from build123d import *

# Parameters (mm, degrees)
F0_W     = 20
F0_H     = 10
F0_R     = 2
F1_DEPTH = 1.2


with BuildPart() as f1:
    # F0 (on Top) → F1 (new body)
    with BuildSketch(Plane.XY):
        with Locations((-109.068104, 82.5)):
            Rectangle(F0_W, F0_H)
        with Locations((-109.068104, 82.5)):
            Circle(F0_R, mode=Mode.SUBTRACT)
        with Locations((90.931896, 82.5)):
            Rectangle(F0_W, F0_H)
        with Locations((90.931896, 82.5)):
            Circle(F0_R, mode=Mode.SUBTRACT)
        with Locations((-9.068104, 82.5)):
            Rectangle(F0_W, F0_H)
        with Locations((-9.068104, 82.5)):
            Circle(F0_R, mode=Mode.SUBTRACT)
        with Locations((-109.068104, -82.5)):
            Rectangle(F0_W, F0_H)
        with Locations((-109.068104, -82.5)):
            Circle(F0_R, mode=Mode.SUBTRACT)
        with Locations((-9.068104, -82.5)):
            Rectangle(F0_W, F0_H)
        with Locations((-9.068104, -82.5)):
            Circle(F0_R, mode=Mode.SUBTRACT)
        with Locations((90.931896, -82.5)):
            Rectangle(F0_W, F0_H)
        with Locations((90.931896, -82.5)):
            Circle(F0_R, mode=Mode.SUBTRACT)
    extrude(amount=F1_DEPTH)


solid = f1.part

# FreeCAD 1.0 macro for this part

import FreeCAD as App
import Part
import Sketcher
from FreeCAD import Vector


def add_polygon(sketch, points):
    """Adds a closed chain of lines whose ends are joined by coincident constraints."""
    first, n = sketch.GeometryCount, len(points)
    for a, b in zip(points, points[1:] + points[:1]):
        sketch.addGeometry(Part.LineSegment(App.Vector(*a, 0), App.Vector(*b, 0)), False)
    for i in range(n):
        sketch.addConstraint(Sketcher.Constraint("Coincident", first + i, 2, first + (i + 1) % n, 1))

doc = App.newDocument("Part")
body = doc.addObject("PartDesign::Body", "Body")
body.AllowCompound = True

# Sketch on XY plane
sketch1 = body.newObject("Sketcher::SketchObject", "Sketch")
sketch1.AttachmentSupport = (doc.getObject("XY_Plane"), [""])
sketch1.MapMode = "FlatFace"
add_polygon(sketch1, [(-119.068104, 87.5), (-119.068104, 77.5), (-99.068104, 77.5), (-99.068104, 87.5)])  # lines 0-3
sketch1.addGeometry(Part.Circle(Vector(-109.068104, 82.5, 0), Vector(0, 0, 1), 2), False)  # 4
add_polygon(sketch1, [(80.931896, 87.5), (80.931896, 77.5), (100.931896, 77.5), (100.931896, 87.5)])  # lines 5-8
sketch1.addGeometry(Part.Circle(Vector(90.931896, 82.5, 0), Vector(0, 0, 1), 2), False)  # 9
add_polygon(sketch1, [(-19.068104, 87.5), (-19.068104, 77.5), (0.931896, 77.5), (0.931896, 87.5)])  # lines 10-13
sketch1.addGeometry(Part.Circle(Vector(-9.068104, 82.5, 0), Vector(0, 0, 1), 2), False)  # 14
add_polygon(sketch1, [(-119.068104, -77.5), (-119.068104, -87.5), (-99.068104, -87.5), (-99.068104, -77.5)])  # lines 15-18
sketch1.addGeometry(Part.Circle(Vector(-109.068104, -82.5, 0), Vector(0, 0, 1), 2), False)  # 19
add_polygon(sketch1, [(-19.068104, -77.5), (-19.068104, -87.5), (0.931896, -87.5), (0.931896, -77.5)])  # lines 20-23
sketch1.addGeometry(Part.Circle(Vector(-9.068104, -82.5, 0), Vector(0, 0, 1), 2), False)  # 24
add_polygon(sketch1, [(80.931896, -77.5), (80.931896, -87.5), (100.931896, -87.5), (100.931896, -77.5)])  # lines 25-28
sketch1.addGeometry(Part.Circle(Vector(90.931896, -82.5, 0), Vector(0, 0, 1), 2), False)  # 29
sketch1.addConstraint([
    Sketcher.Constraint("Vertical", 0),
    Sketcher.Constraint("Horizontal", 1),
    Sketcher.Constraint("Vertical", 2),
    Sketcher.Constraint("Horizontal", 3),
    Sketcher.Constraint("Vertical", 5),
    Sketcher.Constraint("Horizontal", 6),
    Sketcher.Constraint("Vertical", 7),
    Sketcher.Constraint("Horizontal", 8),
    Sketcher.Constraint("Vertical", 10),
    Sketcher.Constraint("Horizontal", 11),
    Sketcher.Constraint("Vertical", 12),
    Sketcher.Constraint("Horizontal", 13),
    Sketcher.Constraint("Vertical", 15),
    Sketcher.Constraint("Horizontal", 16),
    Sketcher.Constraint("Vertical", 17),
    Sketcher.Constraint("Horizontal", 18),
    Sketcher.Constraint("Vertical", 20),
    Sketcher.Constraint("Horizontal", 21),
    Sketcher.Constraint("Vertical", 22),
    Sketcher.Constraint("Horizontal", 23),
    Sketcher.Constraint("Vertical", 25),
    Sketcher.Constraint("Horizontal", 26),
    Sketcher.Constraint("Vertical", 27),
    Sketcher.Constraint("Horizontal", 28),
    Sketcher.Constraint("Equal", 4, 9),
    Sketcher.Constraint("Equal", 9, 14),
    Sketcher.Constraint("Equal", 14, 19),
    Sketcher.Constraint("Equal", 19, 24),
    Sketcher.Constraint("Equal", 24, 29),
    Sketcher.Constraint("Symmetric", 4, 3, 19, 3, -1),
    Sketcher.Constraint("Symmetric", 14, 3, 24, 3, -1),
    Sketcher.Constraint("Symmetric", 9, 3, 29, 3, -1),
    Sketcher.Constraint("Symmetric", 3, 2, 15, 2, -1),
    Sketcher.Constraint("Symmetric", 1, 2, 17, 2, -1),
    Sketcher.Constraint("Symmetric", 13, 2, 20, 2, -1),
    Sketcher.Constraint("Symmetric", 11, 2, 22, 2, -1),
    Sketcher.Constraint("Symmetric", 8, 2, 25, 2, -1),
    Sketcher.Constraint("Symmetric", 6, 2, 27, 2, -1),
    Sketcher.Constraint("Horizontal", 4, 3, 9, 3),
    Sketcher.Constraint("Horizontal", 9, 3, 14, 3),
    Sketcher.Constraint("Horizontal", 1, 2, 5, 2),
    Sketcher.Constraint("Horizontal", 3, 2, 7, 2),
    Sketcher.Constraint("Horizontal", 6, 2, 10, 2),
    Sketcher.Constraint("Horizontal", 8, 2, 12, 2),
    Sketcher.Constraint("Equal", 3, 6),
    Sketcher.Constraint("Equal", 8, 11),
    Sketcher.Constraint("Diameter", 4, 4.0),
    Sketcher.Constraint("DistanceX", 1, 1, 1, 2, 20.0),
    Sketcher.Constraint("DistanceY", 0, 2, 0, 1, 10.0),
    Sketcher.Constraint("DistanceX", 4, 3, 9, 3, 200.0),
    Sketcher.Constraint("DistanceX", 4, 3, 14, 3, 100.0),
    Sketcher.Constraint("DistanceY", 19, 3, 4, 3, 165.0),
    Sketcher.Constraint("DistanceX", 0, 2, 4, 3, 10.0),
    Sketcher.Constraint("DistanceY", 0, 2, 4, 3, 5.0),
    Sketcher.Constraint("DistanceX", 5, 2, 9, 3, 10.0),
    Sketcher.Constraint("DistanceX", 10, 2, 14, 3, 10.0),
    Sketcher.Constraint("DistanceX", 4, 3, -1, 1, 109.068104),
])
pad1 = body.newObject("PartDesign::Pad", "Pad")
pad1.Profile = sketch1
pad1.Length = 1.2

doc.recompute()
